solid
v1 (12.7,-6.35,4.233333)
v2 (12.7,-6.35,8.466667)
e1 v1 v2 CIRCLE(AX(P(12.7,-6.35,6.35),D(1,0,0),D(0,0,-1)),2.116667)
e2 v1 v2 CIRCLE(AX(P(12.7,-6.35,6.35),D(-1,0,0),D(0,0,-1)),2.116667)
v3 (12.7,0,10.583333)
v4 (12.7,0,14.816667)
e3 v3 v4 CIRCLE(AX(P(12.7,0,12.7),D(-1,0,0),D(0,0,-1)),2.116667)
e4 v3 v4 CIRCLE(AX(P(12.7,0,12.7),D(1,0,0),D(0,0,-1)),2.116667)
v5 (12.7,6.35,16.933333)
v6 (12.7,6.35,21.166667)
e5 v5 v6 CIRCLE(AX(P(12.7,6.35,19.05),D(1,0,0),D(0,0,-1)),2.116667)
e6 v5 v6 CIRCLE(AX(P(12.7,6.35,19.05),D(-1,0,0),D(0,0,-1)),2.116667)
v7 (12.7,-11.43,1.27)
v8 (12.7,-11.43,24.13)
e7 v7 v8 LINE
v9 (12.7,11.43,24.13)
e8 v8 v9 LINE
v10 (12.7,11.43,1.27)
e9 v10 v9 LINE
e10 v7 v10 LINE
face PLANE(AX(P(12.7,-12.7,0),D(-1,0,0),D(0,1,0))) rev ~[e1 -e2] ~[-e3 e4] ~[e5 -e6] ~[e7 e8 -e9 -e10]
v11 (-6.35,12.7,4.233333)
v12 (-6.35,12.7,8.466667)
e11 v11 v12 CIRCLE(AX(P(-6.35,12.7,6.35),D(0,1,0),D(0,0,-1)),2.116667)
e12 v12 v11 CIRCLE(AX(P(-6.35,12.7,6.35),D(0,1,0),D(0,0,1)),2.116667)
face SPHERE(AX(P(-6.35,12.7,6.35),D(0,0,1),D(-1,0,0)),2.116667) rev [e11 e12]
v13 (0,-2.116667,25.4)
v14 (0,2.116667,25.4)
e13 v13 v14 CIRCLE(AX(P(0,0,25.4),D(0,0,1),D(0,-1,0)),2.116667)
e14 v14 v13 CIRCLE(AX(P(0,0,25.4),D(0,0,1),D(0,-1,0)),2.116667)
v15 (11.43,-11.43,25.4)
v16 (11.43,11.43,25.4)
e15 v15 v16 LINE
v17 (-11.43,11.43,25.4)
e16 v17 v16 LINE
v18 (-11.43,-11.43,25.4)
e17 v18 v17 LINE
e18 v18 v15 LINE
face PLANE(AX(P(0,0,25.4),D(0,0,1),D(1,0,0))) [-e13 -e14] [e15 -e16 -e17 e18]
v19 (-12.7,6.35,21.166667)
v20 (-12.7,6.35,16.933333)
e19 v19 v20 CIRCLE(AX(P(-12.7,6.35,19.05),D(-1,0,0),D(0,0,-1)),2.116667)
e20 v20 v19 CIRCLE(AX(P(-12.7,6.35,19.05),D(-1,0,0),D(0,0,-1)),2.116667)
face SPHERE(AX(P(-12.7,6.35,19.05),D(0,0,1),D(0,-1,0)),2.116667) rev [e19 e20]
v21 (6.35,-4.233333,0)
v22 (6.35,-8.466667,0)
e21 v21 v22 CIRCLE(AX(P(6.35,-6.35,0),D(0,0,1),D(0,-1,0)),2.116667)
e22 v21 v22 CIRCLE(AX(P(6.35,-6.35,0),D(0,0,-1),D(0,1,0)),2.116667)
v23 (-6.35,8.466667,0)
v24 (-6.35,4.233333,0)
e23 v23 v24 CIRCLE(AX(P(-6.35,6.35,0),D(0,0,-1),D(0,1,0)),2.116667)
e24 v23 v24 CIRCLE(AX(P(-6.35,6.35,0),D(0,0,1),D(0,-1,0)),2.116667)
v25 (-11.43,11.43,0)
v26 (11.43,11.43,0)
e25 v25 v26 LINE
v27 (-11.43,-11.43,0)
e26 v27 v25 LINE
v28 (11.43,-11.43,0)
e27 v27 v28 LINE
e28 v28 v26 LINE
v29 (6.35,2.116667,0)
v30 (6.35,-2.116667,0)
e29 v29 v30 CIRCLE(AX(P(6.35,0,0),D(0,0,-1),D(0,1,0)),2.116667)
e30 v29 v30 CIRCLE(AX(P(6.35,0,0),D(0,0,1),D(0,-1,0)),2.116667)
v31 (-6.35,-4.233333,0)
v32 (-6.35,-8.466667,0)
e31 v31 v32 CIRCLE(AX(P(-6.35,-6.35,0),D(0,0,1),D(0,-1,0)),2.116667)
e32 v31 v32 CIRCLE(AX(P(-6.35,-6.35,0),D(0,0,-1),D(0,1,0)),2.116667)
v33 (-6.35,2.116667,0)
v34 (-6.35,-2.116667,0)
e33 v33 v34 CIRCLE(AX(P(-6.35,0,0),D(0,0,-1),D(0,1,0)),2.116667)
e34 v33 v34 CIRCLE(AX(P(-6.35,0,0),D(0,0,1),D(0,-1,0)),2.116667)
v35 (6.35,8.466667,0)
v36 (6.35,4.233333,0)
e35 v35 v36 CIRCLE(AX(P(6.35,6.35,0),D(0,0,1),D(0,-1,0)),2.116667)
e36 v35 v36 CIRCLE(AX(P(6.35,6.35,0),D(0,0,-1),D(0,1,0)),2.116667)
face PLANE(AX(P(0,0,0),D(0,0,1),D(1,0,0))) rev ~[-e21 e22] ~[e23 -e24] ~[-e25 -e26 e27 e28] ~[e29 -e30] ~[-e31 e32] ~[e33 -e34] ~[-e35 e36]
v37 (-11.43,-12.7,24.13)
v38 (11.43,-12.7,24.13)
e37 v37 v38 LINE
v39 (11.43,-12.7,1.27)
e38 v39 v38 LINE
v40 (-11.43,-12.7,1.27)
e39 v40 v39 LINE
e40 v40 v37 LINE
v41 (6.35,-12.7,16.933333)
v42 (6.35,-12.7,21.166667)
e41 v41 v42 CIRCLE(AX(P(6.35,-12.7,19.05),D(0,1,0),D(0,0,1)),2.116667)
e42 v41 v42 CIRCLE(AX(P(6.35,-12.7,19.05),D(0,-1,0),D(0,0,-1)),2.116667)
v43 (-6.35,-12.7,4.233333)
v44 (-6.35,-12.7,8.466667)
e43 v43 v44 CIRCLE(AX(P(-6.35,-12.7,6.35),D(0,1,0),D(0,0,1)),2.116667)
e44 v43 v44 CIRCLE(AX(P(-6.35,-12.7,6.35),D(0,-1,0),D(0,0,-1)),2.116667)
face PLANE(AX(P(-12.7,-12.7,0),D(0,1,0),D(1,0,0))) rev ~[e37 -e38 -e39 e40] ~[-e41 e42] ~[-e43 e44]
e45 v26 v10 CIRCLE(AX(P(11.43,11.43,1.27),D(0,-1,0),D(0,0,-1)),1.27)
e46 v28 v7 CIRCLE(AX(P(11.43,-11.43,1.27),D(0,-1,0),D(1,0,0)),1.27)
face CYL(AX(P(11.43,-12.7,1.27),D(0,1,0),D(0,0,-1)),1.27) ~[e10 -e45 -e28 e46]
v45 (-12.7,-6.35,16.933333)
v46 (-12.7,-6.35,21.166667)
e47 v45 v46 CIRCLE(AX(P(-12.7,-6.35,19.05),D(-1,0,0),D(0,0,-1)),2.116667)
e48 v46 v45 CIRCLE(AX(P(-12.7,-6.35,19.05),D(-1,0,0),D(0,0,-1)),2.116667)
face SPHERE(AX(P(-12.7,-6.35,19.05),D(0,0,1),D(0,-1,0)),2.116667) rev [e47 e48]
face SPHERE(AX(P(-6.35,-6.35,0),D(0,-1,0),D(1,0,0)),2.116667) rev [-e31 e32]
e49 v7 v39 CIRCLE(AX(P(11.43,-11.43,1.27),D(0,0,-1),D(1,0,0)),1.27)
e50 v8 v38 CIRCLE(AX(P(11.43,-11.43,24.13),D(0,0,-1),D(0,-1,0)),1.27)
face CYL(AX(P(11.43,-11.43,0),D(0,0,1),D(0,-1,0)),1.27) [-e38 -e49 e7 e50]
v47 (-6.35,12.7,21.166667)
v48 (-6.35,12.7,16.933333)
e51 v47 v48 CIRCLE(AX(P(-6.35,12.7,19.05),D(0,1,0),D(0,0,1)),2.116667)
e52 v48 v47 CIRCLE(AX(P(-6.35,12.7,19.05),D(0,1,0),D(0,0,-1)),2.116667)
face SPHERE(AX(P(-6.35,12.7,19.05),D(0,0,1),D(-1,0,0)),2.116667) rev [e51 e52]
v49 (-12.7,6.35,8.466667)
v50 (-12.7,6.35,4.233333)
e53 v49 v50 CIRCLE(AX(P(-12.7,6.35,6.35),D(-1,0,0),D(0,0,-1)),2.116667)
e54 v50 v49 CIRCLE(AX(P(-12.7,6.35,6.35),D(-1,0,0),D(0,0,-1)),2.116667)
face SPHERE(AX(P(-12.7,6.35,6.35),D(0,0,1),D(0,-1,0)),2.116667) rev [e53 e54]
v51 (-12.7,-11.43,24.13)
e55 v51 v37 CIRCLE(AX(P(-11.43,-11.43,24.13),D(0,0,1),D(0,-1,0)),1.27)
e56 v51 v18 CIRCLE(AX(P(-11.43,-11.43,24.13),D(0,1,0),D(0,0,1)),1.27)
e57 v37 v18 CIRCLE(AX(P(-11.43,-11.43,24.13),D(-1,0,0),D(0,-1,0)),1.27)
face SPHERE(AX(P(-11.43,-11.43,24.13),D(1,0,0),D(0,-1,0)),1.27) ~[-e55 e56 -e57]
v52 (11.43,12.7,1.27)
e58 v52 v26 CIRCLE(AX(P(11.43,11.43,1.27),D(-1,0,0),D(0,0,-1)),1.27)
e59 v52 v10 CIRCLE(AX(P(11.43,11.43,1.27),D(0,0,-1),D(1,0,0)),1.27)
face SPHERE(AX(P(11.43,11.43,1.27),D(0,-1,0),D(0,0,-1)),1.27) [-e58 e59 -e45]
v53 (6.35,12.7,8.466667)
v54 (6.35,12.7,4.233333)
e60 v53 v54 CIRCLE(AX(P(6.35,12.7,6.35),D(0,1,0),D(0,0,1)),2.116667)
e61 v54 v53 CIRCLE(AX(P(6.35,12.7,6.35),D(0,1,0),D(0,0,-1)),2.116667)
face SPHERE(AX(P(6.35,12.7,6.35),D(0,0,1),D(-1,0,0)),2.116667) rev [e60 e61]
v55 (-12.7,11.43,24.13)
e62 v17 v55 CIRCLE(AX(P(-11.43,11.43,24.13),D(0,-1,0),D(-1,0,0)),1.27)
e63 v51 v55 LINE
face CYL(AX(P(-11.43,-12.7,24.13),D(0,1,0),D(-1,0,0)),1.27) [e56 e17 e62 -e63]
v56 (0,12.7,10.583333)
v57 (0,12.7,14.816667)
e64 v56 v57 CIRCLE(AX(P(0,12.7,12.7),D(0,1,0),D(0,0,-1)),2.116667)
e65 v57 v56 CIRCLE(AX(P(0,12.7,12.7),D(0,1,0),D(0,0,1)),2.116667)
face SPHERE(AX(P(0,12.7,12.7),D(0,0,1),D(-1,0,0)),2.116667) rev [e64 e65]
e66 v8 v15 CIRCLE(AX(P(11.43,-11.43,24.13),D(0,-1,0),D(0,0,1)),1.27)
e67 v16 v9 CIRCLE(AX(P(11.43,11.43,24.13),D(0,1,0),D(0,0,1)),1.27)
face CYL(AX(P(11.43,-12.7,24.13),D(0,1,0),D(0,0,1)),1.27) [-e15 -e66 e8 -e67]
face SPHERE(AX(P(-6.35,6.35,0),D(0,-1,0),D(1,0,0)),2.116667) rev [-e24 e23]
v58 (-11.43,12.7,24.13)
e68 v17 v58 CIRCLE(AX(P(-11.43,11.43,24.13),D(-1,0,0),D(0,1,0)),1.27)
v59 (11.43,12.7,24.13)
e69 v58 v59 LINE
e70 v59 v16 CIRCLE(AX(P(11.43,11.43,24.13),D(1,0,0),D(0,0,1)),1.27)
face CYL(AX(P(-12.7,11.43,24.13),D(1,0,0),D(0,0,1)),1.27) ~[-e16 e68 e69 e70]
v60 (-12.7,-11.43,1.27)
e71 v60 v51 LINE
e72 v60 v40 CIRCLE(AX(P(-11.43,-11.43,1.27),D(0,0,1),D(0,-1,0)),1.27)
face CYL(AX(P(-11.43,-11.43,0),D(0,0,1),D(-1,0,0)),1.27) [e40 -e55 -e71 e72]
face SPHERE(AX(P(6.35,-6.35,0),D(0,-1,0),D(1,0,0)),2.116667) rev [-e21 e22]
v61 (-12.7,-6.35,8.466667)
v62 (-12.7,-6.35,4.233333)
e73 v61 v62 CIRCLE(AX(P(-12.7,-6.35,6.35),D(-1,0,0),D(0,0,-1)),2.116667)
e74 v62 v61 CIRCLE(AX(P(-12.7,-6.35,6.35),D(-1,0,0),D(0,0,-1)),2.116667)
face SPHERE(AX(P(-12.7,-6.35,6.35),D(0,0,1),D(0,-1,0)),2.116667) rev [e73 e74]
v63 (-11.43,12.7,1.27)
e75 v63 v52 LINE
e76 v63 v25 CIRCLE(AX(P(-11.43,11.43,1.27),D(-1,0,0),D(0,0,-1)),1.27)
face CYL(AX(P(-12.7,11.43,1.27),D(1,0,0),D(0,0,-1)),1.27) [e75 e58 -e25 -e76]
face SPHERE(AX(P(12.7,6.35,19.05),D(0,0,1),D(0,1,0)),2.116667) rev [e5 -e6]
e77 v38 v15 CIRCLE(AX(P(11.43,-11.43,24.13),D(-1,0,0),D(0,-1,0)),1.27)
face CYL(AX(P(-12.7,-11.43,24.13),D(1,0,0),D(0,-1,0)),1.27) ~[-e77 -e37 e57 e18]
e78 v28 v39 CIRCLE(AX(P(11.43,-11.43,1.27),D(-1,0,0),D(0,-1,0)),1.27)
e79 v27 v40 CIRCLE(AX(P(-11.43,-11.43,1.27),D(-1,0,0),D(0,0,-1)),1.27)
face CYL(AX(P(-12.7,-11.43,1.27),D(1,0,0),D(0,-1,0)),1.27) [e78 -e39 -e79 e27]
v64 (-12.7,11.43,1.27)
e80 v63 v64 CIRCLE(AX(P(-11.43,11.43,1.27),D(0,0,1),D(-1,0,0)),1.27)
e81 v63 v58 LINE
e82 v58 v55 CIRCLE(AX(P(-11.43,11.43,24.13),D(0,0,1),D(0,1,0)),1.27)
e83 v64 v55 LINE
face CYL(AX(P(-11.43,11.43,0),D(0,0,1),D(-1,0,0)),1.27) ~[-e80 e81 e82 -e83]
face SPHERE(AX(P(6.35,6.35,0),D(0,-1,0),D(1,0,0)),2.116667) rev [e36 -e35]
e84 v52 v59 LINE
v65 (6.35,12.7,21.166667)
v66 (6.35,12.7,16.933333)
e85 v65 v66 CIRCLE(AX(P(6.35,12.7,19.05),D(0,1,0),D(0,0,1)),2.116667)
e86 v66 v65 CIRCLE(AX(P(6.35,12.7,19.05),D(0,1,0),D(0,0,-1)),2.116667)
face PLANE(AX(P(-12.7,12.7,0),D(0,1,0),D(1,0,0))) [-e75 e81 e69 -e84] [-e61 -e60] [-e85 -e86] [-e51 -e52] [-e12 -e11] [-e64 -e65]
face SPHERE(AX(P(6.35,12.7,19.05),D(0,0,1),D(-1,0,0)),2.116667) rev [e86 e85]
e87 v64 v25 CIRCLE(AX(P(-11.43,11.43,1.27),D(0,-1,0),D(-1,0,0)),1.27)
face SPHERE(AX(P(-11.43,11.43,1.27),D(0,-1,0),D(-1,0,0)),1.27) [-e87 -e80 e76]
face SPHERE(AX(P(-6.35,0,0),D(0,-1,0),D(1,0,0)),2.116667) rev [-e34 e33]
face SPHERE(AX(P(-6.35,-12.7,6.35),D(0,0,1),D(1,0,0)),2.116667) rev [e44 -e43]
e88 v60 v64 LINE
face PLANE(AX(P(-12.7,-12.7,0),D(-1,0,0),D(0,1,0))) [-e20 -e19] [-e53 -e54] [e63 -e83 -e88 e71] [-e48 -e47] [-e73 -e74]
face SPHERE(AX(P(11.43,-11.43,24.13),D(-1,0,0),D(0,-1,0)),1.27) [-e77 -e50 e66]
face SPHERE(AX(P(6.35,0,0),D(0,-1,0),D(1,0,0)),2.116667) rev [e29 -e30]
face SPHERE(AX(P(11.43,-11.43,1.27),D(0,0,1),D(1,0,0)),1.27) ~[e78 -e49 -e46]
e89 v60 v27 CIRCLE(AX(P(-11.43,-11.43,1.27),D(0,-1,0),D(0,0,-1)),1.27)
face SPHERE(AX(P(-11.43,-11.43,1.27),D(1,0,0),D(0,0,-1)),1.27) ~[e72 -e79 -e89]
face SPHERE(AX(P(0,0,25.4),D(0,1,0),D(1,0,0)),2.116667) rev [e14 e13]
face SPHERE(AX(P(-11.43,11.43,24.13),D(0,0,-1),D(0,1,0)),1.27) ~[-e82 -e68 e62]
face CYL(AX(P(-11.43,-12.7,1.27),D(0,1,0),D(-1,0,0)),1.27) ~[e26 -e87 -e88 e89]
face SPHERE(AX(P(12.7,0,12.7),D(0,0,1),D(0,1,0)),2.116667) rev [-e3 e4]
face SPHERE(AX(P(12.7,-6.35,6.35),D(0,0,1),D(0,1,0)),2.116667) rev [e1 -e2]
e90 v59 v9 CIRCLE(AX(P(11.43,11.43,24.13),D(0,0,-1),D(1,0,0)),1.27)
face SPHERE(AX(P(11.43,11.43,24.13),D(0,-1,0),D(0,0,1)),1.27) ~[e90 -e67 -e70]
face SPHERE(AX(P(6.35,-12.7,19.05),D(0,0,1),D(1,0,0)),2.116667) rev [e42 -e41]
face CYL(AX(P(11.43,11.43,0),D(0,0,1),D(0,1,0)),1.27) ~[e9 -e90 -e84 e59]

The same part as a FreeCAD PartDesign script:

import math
import FreeCAD as App
import Part
import Sketcher

V = App.Vector
Q = App.Units.Quantity


def edges_at(feature, points):
    """Names of the edges that pass closest to the given points."""
    edges = feature.Shape.Edges
    near = lambda p: min(range(len(edges)), key=lambda i: edges[i].distToShape(Part.Vertex(*p))[0])
    return sorted({f"Edge{near(p) + 1}" for p in points})


def add_polygon(sketch, points):
    """Adds a closed chain of lines whose ends are joined by coincident constraints."""
    first, n = sketch.GeometryCount, len(points)
    for a, b in zip(points, points[1:] + points[:1]):
        sketch.addGeometry(Part.LineSegment(App.Vector(*a, 0), App.Vector(*b, 0)), False)
    for i in range(n):
        sketch.addConstraint(Sketcher.Constraint("Coincident", first + i, 2, first + (i + 1) % n, 1))

doc = App.newDocument("Part")
body = doc.addObject("PartDesign::Body", "Body")

sketch1 = body.newObject("Sketcher::SketchObject", "Sketch")
sketch1.AttachmentSupport = (doc.getObject("XY_Plane"), [""])
sketch1.MapMode = "FlatFace"
add_polygon(sketch1, [(-13, 13), (-13, -13), (13, -13), (13, 13)])
sketch1.addConstraint([
    Sketcher.Constraint("Vertical", 0),
    Sketcher.Constraint("Horizontal", 1),
    Sketcher.Constraint("Vertical", 2),
    Sketcher.Constraint("Horizontal", 3),
    Sketcher.Constraint("Symmetric", 0, 2, 2, 2, -1, 1),
    Sketcher.Constraint("Equal", 3, 0),
    Sketcher.Constraint("DistanceX", 1, 1, 1, 2, Q("1 in")),
])
pad1 = body.newObject("PartDesign::Pad", "Pad")
pad1.Profile = sketch1
pad1.Length = Q("1 in")

sketch2 = body.newObject("Sketcher::SketchObject", "Sketch001")
sketch2.AttachmentSupport = (doc.getObject("XY_Plane"), [""])
sketch2.MapMode = "FlatFace"
sketch2.AttachmentOffset = App.Placement(V(0, 0, 1 * 25.4), App.Rotation())
sketch2.addGeometry([
    Part.LineSegment(V(0, 2.1, 0), V(0, -2.1, 0)),
    Part.ArcOfCircle(Part.Circle(V(0, 0, 0), V(0, 0, 1), 2.1), math.radians(-90), math.radians(90)),
], False)
sketch2.addConstraint([
    Sketcher.Constraint("Coincident", 0, 1, 1, 2),
    Sketcher.Constraint("Coincident", 1, 1, 0, 2),
    Sketcher.Constraint("Vertical", 0),
    Sketcher.Constraint("Coincident", 1, 3, -1, 1),
    Sketcher.Constraint("PointOnObject", 0, 1, -2),
    Sketcher.Constraint("Radius", 1, Q("2.116667 mm")),
])
groove = body.newObject("PartDesign::Groove", "Groove")
groove.Profile = sketch2
groove.ReferenceAxis = (sketch2, ["V_Axis"])
groove.Angle = 360

sketch3 = body.newObject("Sketcher::SketchObject", "Sketch002")
sketch3.AttachmentSupport = (doc.getObject("XZ_Plane"), [""])
sketch3.MapMode = "FlatFace"
sketch3.AttachmentOffset = App.Placement(V(0, 0, 0.5 * 25.4), App.Rotation())
sketch3.addGeometry([
    Part.LineSegment(V(-6.3, 8.5, 0), V(-6.3, 4.2, 0)),
    Part.ArcOfCircle(Part.Circle(V(-6.3, 6.3, 0), V(0, 0, 1), 2.1), math.radians(-90), math.radians(90)),
], False)
sketch3.addGeometry(Part.LineSegment(V(-6.3, 8.5, 0), V(-6.3, 4.2, 0)), True)
sketch3.addConstraint([
    Sketcher.Constraint("Coincident", 0, 1, 1, 2),
    Sketcher.Constraint("Coincident", 1, 1, 0, 2),
    Sketcher.Constraint("Vertical", 0),
    Sketcher.Constraint("Vertical", 2),
    Sketcher.Constraint("Coincident", 2, 1, 0, 1),
    Sketcher.Constraint("Vertical", 1, 3, 0, 1),
    Sketcher.Constraint("Equal", 0, 2),
    Sketcher.Constraint("DistanceX", 1, 3, -1, 1, Q("0.25 in")),
    Sketcher.Constraint("DistanceY", -1, 1, 1, 3, Q("0.25 in")),
    Sketcher.Constraint("Radius", 1, Q("2.116667 mm")),
])
groove2 = body.newObject("PartDesign::Groove", "Groove001")
groove2.Profile = sketch3
groove2.ReferenceAxis = (sketch3, ["Axis0"])
groove2.Angle = 360

sketch4 = body.newObject("Sketcher::SketchObject", "Sketch003")
sketch4.AttachmentSupport = (doc.getObject("XZ_Plane"), [""])
sketch4.MapMode = "FlatFace"
sketch4.AttachmentOffset = App.Placement(V(0, 0, 0.5 * 25.4), App.Rotation())
sketch4.addGeometry([
    Part.LineSegment(V(6.3, 21.2, 0), V(6.3, 16.9, 0)),
    Part.ArcOfCircle(Part.Circle(V(6.3, 19.1, 0), V(0, 0, 1), 2.1), math.radians(-90), math.radians(90)),
], False)
sketch4.addGeometry(Part.LineSegment(V(6.3, 21.2, 0), V(6.3, 16.9, 0)), True)
sketch4.addConstraint([
    Sketcher.Constraint("Coincident", 0, 1, 1, 2),
    Sketcher.Constraint("Coincident", 1, 1, 0, 2),
    Sketcher.Constraint("Vertical", 0),
    Sketcher.Constraint("Vertical", 2),
    Sketcher.Constraint("Coincident", 2, 1, 0, 1),
    Sketcher.Constraint("Vertical", 1, 3, 0, 1),
    Sketcher.Constraint("Equal", 0, 2),
    Sketcher.Constraint("DistanceX", -1, 1, 1, 3, Q("0.25 in")),
    Sketcher.Constraint("DistanceY", -1, 1, 1, 3, Q("0.75 in")),
    Sketcher.Constraint("Radius", 1, Q("2.116667 mm")),
])
groove3 = body.newObject("PartDesign::Groove", "Groove002")
groove3.Profile = sketch4
groove3.ReferenceAxis = (sketch4, ["Axis0"])
groove3.Angle = 360

sketch5 = body.newObject("Sketcher::SketchObject", "Sketch004")
sketch5.AttachmentSupport = (doc.getObject("YZ_Plane"), [""])
sketch5.MapMode = "FlatFace"
sketch5.AttachmentOffset = App.Placement(V(0, 0, 0.5 * 25.4), App.Rotation())
sketch5.addGeometry([
    Part.LineSegment(V(6.3, 21.2, 0), V(6.3, 16.9, 0)),
    Part.ArcOfCircle(Part.Circle(V(6.3, 19.1, 0), V(0, 0, 1), 2.1), math.radians(-90), math.radians(90)),
], False)
sketch5.addGeometry(Part.LineSegment(V(6.3, 21.2, 0), V(6.3, 16.9, 0)), True)
sketch5.addConstraint([
    Sketcher.Constraint("Coincident", 0, 1, 1, 2),
    Sketcher.Constraint("Coincident", 1, 1, 0, 2),
    Sketcher.Constraint("Vertical", 0),
    Sketcher.Constraint("Vertical", 2),
    Sketcher.Constraint("Coincident", 2, 1, 0, 1),
    Sketcher.Constraint("Vertical", 1, 3, 0, 1),
    Sketcher.Constraint("Equal", 0, 2),
    Sketcher.Constraint("DistanceX", -1, 1, 1, 3, Q("0.25 in")),
    Sketcher.Constraint("DistanceY", -1, 1, 1, 3, Q("0.75 in")),
    Sketcher.Constraint("Radius", 1, Q("2.116667 mm")),
])
groove4 = body.newObject("PartDesign::Groove", "Groove003")
groove4.Profile = sketch5
groove4.ReferenceAxis = (sketch5, ["Axis0"])
groove4.Angle = 360

sketch6 = body.newObject("Sketcher::SketchObject", "Sketch005")
sketch6.AttachmentSupport = (doc.getObject("YZ_Plane"), [""])
sketch6.MapMode = "FlatFace"
sketch6.AttachmentOffset = App.Placement(V(0, 0, 0.5 * 25.4), App.Rotation())
sketch6.addGeometry([
    Part.LineSegment(V(0, 14.8, 0), V(0, 10.6, 0)),
    Part.ArcOfCircle(Part.Circle(V(0, 12.7, 0), V(0, 0, 1), 2.1), math.radians(-90), math.radians(90)),
], False)
sketch6.addConstraint([
    Sketcher.Constraint("Coincident", 0, 1, 1, 2),
    Sketcher.Constraint("Coincident", 1, 1, 0, 2),
    Sketcher.Constraint("Vertical", 0),
    Sketcher.Constraint("PointOnObject", 1, 3, -2),
    Sketcher.Constraint("PointOnObject", 0, 1, -2),
    Sketcher.Constraint("DistanceY", -1, 1, 1, 3, Q("0.5 in")),
    Sketcher.Constraint("Radius", 1, Q("2.116667 mm")),
])
groove5 = body.newObject("PartDesign::Groove", "Groove004")
groove5.Profile = sketch6
groove5.ReferenceAxis = (sketch6, ["V_Axis"])
groove5.Angle = 360

sketch7 = body.newObject("Sketcher::SketchObject", "Sketch006")
sketch7.AttachmentSupport = (doc.getObject("YZ_Plane"), [""])
sketch7.MapMode = "FlatFace"
sketch7.AttachmentOffset = App.Placement(V(0, 0, 0.5 * 25.4), App.Rotation())
sketch7.addGeometry([
    Part.LineSegment(V(-6.3, 8.5, 0), V(-6.3, 4.2, 0)),
    Part.ArcOfCircle(Part.Circle(V(-6.3, 6.3, 0), V(0, 0, 1), 2.1), math.radians(-90), math.radians(90)),
], False)
sketch7.addGeometry(Part.LineSegment(V(-6.3, 8.5, 0), V(-6.3, 4.2, 0)), True)
sketch7.addConstraint([
    Sketcher.Constraint("Coincident", 0, 1, 1, 2),
    Sketcher.Constraint("Coincident", 1, 1, 0, 2),
    Sketcher.Constraint("Vertical", 0),
    Sketcher.Constraint("Vertical", 2),
    Sketcher.Constraint("Coincident", 2, 1, 0, 1),
    Sketcher.Constraint("Vertical", 1, 3, 0, 1),
    Sketcher.Constraint("Equal", 0, 2),
    Sketcher.Constraint("DistanceX", 1, 3, -1, 1, Q("0.25 in")),
    Sketcher.Constraint("DistanceY", -1, 1, 1, 3, Q("0.25 in")),
    Sketcher.Constraint("Radius", 1, Q("2.116667 mm")),
])
groove6 = body.newObject("PartDesign::Groove", "Groove005")
groove6.Profile = sketch7
groove6.ReferenceAxis = (sketch7, ["Axis0"])
groove6.Angle = 360

sketch8 = body.newObject("Sketcher::SketchObject", "Sketch007")
sketch8.AttachmentSupport = (doc.getObject("YZ_Plane"), [""])
sketch8.MapMode = "FlatFace"
sketch8.AttachmentOffset = App.Placement(V(0, 0, -0.5 * 25.4), App.Rotation())
sketch8.addGeometry([
    Part.LineSegment(V(6.3, 21.2, 0), V(6.3, 16.9, 0)),
    Part.ArcOfCircle(Part.Circle(V(6.3, 19.1, 0), V(0, 0, 1), 2.1), math.radians(90), math.radians(270)),
], False)
sketch8.addGeometry(Part.LineSegment(V(6.3, 21.2, 0), V(6.3, 16.9, 0)), True)
sketch8.addConstraint([
    Sketcher.Constraint("Coincident", 0, 1, 1, 1),
    Sketcher.Constraint("Coincident", 1, 2, 0, 2),
    Sketcher.Constraint("Vertical", 0),
    Sketcher.Constraint("Vertical", 2),
    Sketcher.Constraint("Coincident", 2, 1, 0, 1),
    Sketcher.Constraint("Vertical", 1, 3, 0, 1),
    Sketcher.Constraint("Equal", 0, 2),
    Sketcher.Constraint("DistanceX", -1, 1, 1, 3, Q("0.25 in")),
    Sketcher.Constraint("DistanceY", -1, 1, 1, 3, Q("0.75 in")),
    Sketcher.Constraint("Radius", 1, Q("2.116667 mm")),
])
groove7 = body.newObject("PartDesign::Groove", "Groove006")
groove7.Profile = sketch8
groove7.ReferenceAxis = (sketch8, ["Axis0"])
groove7.Angle = 360

sketch9 = body.newObject("Sketcher::SketchObject", "Sketch008")
sketch9.AttachmentSupport = (doc.getObject("YZ_Plane"), [""])
sketch9.MapMode = "FlatFace"
sketch9.AttachmentOffset = App.Placement(V(0, 0, -0.5 * 25.4), App.Rotation())
sketch9.addGeometry([
    Part.LineSegment(V(-6.3, 21.2, 0), V(-6.3, 16.9, 0)),
    Part.ArcOfCircle(Part.Circle(V(-6.3, 19.1, 0), V(0, 0, 1), 2.1), math.radians(90), math.radians(270)),
], False)
sketch9.addGeometry(Part.LineSegment(V(-6.3, 21.2, 0), V(-6.3, 16.9, 0)), True)
sketch9.addConstraint([
    Sketcher.Constraint("Coincident", 0, 1, 1, 1),
    Sketcher.Constraint("Coincident", 1, 2, 0, 2),
    Sketcher.Constraint("Vertical", 0),
    Sketcher.Constraint("Vertical", 2),
    Sketcher.Constraint("Coincident", 2, 1, 0, 1),
    Sketcher.Constraint("Vertical", 1, 3, 0, 1),
    Sketcher.Constraint("Equal", 0, 2),
    Sketcher.Constraint("DistanceX", 1, 3, -1, 1, Q("0.25 in")),
    Sketcher.Constraint("DistanceY", -1, 1, 1, 3, Q("0.75 in")),
    Sketcher.Constraint("Radius", 1, Q("2.116667 mm")),
])
groove8 = body.newObject("PartDesign::Groove", "Groove007")
groove8.Profile = sketch9
groove8.ReferenceAxis = (sketch9, ["Axis0"])
groove8.Angle = 360

sketch10 = body.newObject("Sketcher::SketchObject", "Sketch009")
sketch10.AttachmentSupport = (doc.getObject("YZ_Plane"), [""])
sketch10.MapMode = "FlatFace"
sketch10.AttachmentOffset = App.Placement(V(0, 0, -0.5 * 25.4), App.Rotation())
sketch10.addGeometry([
    Part.LineSegment(V(6.3, 8.5, 0), V(6.3, 4.2, 0)),
    Part.ArcOfCircle(Part.Circle(V(6.3, 6.3, 0), V(0, 0, 1), 2.1), math.radians(90), math.radians(270)),
], False)
sketch10.addGeometry(Part.LineSegment(V(6.3, 8.5, 0), V(6.3, 4.2, 0)), True)
sketch10.addConstraint([
    Sketcher.Constraint("Coincident", 0, 1, 1, 1),
    Sketcher.Constraint("Coincident", 1, 2, 0, 2),
    Sketcher.Constraint("Vertical", 0),
    Sketcher.Constraint("Vertical", 2),
    Sketcher.Constraint("Coincident", 2, 1, 0, 1),
    Sketcher.Constraint("Vertical", 1, 3, 0, 1),
    Sketcher.Constraint("Equal", 0, 2),
    Sketcher.Constraint("DistanceX", -1, 1, 1, 3, Q("0.25 in")),
    Sketcher.Constraint("DistanceY", -1, 1, 1, 3, Q("0.25 in")),
    Sketcher.Constraint("Radius", 1, Q("2.116667 mm")),
])
groove9 = body.newObject("PartDesign::Groove", "Groove008")
groove9.Profile = sketch10
groove9.ReferenceAxis = (sketch10, ["Axis0"])
groove9.Angle = 360

sketch11 = body.newObject("Sketcher::SketchObject", "Sketch010")
sketch11.AttachmentSupport = (doc.getObject("YZ_Plane"), [""])
sketch11.MapMode = "FlatFace"
sketch11.AttachmentOffset = App.Placement(V(0, 0, -0.5 * 25.4), App.Rotation())
sketch11.addGeometry([
    Part.LineSegment(V(-6.3, 8.5, 0), V(-6.3, 4.2, 0)),
    Part.ArcOfCircle(Part.Circle(V(-6.3, 6.3, 0), V(0, 0, 1), 2.1), math.radians(90), math.radians(270)),
], False)
sketch11.addGeometry(Part.LineSegment(V(-6.3, 8.5, 0), V(-6.3, 4.2, 0)), True)
sketch11.addConstraint([
    Sketcher.Constraint("Coincident", 0, 1, 1, 1),
    Sketcher.Constraint("Coincident", 1, 2, 0, 2),
    Sketcher.Constraint("Vertical", 0),
    Sketcher.Constraint("Vertical", 2),
    Sketcher.Constraint("Coincident", 2, 1, 0, 1),
    Sketcher.Constraint("Vertical", 1, 3, 0, 1),
    Sketcher.Constraint("Equal", 0, 2),
    Sketcher.Constraint("DistanceX", 1, 3, -1, 1, Q("0.25 in")),
    Sketcher.Constraint("DistanceY", -1, 1, 1, 3, Q("0.25 in")),
    Sketcher.Constraint("Radius", 1, Q("2.116667 mm")),
])
groove10 = body.newObject("PartDesign::Groove", "Groove009")
groove10.Profile = sketch11
groove10.ReferenceAxis = (sketch11, ["Axis0"])
groove10.Angle = 360

sketch12 = body.newObject("Sketcher::SketchObject", "Sketch011")
sketch12.AttachmentSupport = (doc.getObject("XZ_Plane"), [""])
sketch12.MapMode = "FlatFace"
sketch12.AttachmentOffset = App.Placement(V(0, 0, -0.5 * 25.4), App.Rotation())
sketch12.addGeometry([
    Part.LineSegment(V(6.3, 21.2, 0), V(6.3, 16.9, 0)),
    Part.ArcOfCircle(Part.Circle(V(6.3, 19.1, 0), V(0, 0, 1), 2.1), math.radians(90), math.radians(270)),
], False)
sketch12.addGeometry(Part.LineSegment(V(6.3, 21.2, 0), V(6.3, 16.9, 0)), True)
sketch12.addConstraint([
    Sketcher.Constraint("Coincident", 0, 1, 1, 1),
    Sketcher.Constraint("Coincident", 1, 2, 0, 2),
    Sketcher.Constraint("Vertical", 0),
    Sketcher.Constraint("Vertical", 2),
    Sketcher.Constraint("Coincident", 2, 1, 0, 1),
    Sketcher.Constraint("Vertical", 1, 3, 0, 1),
    Sketcher.Constraint("Equal", 0, 2),
    Sketcher.Constraint("DistanceX", -1, 1, 1, 3, Q("0.25 in")),
    Sketcher.Constraint("DistanceY", -1, 1, 1, 3, Q("0.75 in")),
    Sketcher.Constraint("Radius", 1, Q("2.116667 mm")),
])
groove11 = body.newObject("PartDesign::Groove", "Groove010")
groove11.Profile = sketch12
groove11.ReferenceAxis = (sketch12, ["Axis0"])
groove11.Angle = 360

sketch13 = body.newObject("Sketcher::SketchObject", "Sketch012")
sketch13.AttachmentSupport = (doc.getObject("XZ_Plane"), [""])
sketch13.MapMode = "FlatFace"
sketch13.AttachmentOffset = App.Placement(V(0, 0, -0.5 * 25.4), App.Rotation())
sketch13.addGeometry([
    Part.ArcOfCircle(Part.Circle(V(-6.3, 19.1, 0), V(0, 0, 1), 2.1), math.radians(90), math.radians(270)),
    Part.LineSegment(V(-6.3, 21.2, 0), V(-6.3, 16.9, 0)),
], False)
sketch13.addGeometry(Part.LineSegment(V(-6.3, 21.2, 0), V(-6.3, 16.9, 0)), True)
sketch13.addConstraint([
    Sketcher.Constraint("Coincident", 0, 1, 1, 1),
    Sketcher.Constraint("Coincident", 1, 2, 0, 2),
    Sketcher.Constraint("Vertical", 1),
    Sketcher.Constraint("Vertical", 2),
    Sketcher.Constraint("Coincident", 2, 1, 0, 1),
    Sketcher.Constraint("Equal", 1, 2),
    Sketcher.Constraint("DistanceX", 0, 3, -1, 1, Q("0.25 in")),
    Sketcher.Constraint("DistanceY", -1, 1, 0, 3, Q("0.75 in")),
    Sketcher.Constraint("DistanceX", 0, 1, -1, 1, Q("0.25 in")),
    Sketcher.Constraint("Radius", 0, Q("2.116667 mm")),
])
groove12 = body.newObject("PartDesign::Groove", "Groove011")
groove12.Profile = sketch13
groove12.ReferenceAxis = (sketch13, ["Axis0"])
groove12.Angle = 360

sketch14 = body.newObject("Sketcher::SketchObject", "Sketch013")
sketch14.AttachmentSupport = (doc.getObject("XZ_Plane"), [""])
sketch14.MapMode = "FlatFace"
sketch14.AttachmentOffset = App.Placement(V(0, 0, -0.5 * 25.4), App.Rotation())
sketch14.addGeometry([
    Part.LineSegment(V(0, 14.8, 0), V(0, 10.6, 0)),
    Part.ArcOfCircle(Part.Circle(V(0, 12.7, 0), V(0, 0, 1), 2.1), math.radians(90), math.radians(270)),
], False)
sketch14.addConstraint([
    Sketcher.Constraint("Coincident", 0, 1, 1, 1),
    Sketcher.Constraint("Coincident", 1, 2, 0, 2),
    Sketcher.Constraint("Vertical", 0),
    Sketcher.Constraint("PointOnObject", 1, 3, -2),
    Sketcher.Constraint("PointOnObject", 0, 1, -2),
    Sketcher.Constraint("DistanceY", -1, 1, 1, 3, Q("0.5 in")),
    Sketcher.Constraint("Radius", 1, Q("2.116667 mm")),
])
groove13 = body.newObject("PartDesign::Groove", "Groove012")
groove13.Profile = sketch14
groove13.ReferenceAxis = (sketch14, ["V_Axis"])
groove13.Angle = 360

sketch15 = body.newObject("Sketcher::SketchObject", "Sketch014")
sketch15.AttachmentSupport = (doc.getObject("XZ_Plane"), [""])
sketch15.MapMode = "FlatFace"
sketch15.AttachmentOffset = App.Placement(V(0, 0, -0.5 * 25.4), App.Rotation())
sketch15.addGeometry([
    Part.ArcOfCircle(Part.Circle(V(6.3, 6.3, 0), V(0, 0, 1), 2.1), math.radians(90), math.radians(270)),
    Part.LineSegment(V(6.3, 8.5, 0), V(6.3, 4.2, 0)),
], False)
sketch15.addGeometry(Part.LineSegment(V(6.3, 8.5, 0), V(6.3, 4.2, 0)), True)
sketch15.addConstraint([
    Sketcher.Constraint("Coincident", 0, 1, 1, 1),
    Sketcher.Constraint("Coincident", 1, 2, 0, 2),
    Sketcher.Constraint("Vertical", 1),
    Sketcher.Constraint("Vertical", 2),
    Sketcher.Constraint("Coincident", 2, 1, 0, 1),
    Sketcher.Constraint("Equal", 1, 2),
    Sketcher.Constraint("DistanceX", -1, 1, 0, 3, Q("0.25 in")),
    Sketcher.Constraint("DistanceY", -1, 1, 0, 3, Q("0.25 in")),
    Sketcher.Constraint("DistanceX", -1, 1, 0, 1, Q("0.25 in")),
    Sketcher.Constraint("Radius", 0, Q("2.116667 mm")),
])
groove14 = body.newObject("PartDesign::Groove", "Groove013")
groove14.Profile = sketch15
groove14.ReferenceAxis = (sketch15, ["Axis0"])
groove14.Angle = 360

sketch16 = body.newObject("Sketcher::SketchObject", "Sketch015")
sketch16.AttachmentSupport = (doc.getObject("XZ_Plane"), [""])
sketch16.MapMode = "FlatFace"
sketch16.AttachmentOffset = App.Placement(V(0, 0, -0.5 * 25.4), App.Rotation())
sketch16.addGeometry([
    Part.ArcOfCircle(Part.Circle(V(-6.3, 6.3, 0), V(0, 0, 1), 2.1), math.radians(90), math.radians(270)),
    Part.LineSegment(V(-6.3, 8.5, 0), V(-6.3, 4.2, 0)),
], False)
sketch16.addGeometry(Part.LineSegment(V(-6.3, 8.5, 0), V(-6.3, 4.2, 0)), True)
sketch16.addConstraint([
    Sketcher.Constraint("Coincident", 0, 1, 1, 1),
    Sketcher.Constraint("Coincident", 1, 2, 0, 2),
    Sketcher.Constraint("Vertical", 1),
    Sketcher.Constraint("Vertical", 2),
    Sketcher.Constraint("Coincident", 2, 1, 0, 1),
    Sketcher.Constraint("Equal", 1, 2),
    Sketcher.Constraint("DistanceX", 0, 3, -1, 1, Q("0.25 in")),
    Sketcher.Constraint("DistanceY", -1, 1, 0, 3, Q("0.25 in")),
    Sketcher.Constraint("DistanceX", 0, 1, -1, 1, Q("0.25 in")),
    Sketcher.Constraint("Radius", 0, Q("2.116667 mm")),
])
groove15 = body.newObject("PartDesign::Groove", "Groove014")
groove15.Profile = sketch16
groove15.ReferenceAxis = (sketch16, ["Axis0"])
groove15.Angle = 360

sketch17 = body.newObject("Sketcher::SketchObject", "Sketch016")
sketch17.AttachmentSupport = (doc.getObject("XY_Plane"), [""])
sketch17.MapMode = "FlatFace"
sketch17.addGeometry([
    Part.LineSegment(V(-6.3, -8.5, 0), V(-6.3, -4.2, 0)),
    Part.ArcOfCircle(Part.Circle(V(-6.3, -6.3, 0), V(0, 0, 1), 2.1), math.radians(-90), math.radians(90)),
], False)
sketch17.addGeometry(Part.LineSegment(V(-6.3, -8.5, 0), V(-6.3, -4.2, 0)), True)
sketch17.addConstraint([
    Sketcher.Constraint("Coincident", 0, 1, 1, 1),
    Sketcher.Constraint("Coincident", 1, 2, 0, 2),
    Sketcher.Constraint("Vertical", 0),
    Sketcher.Constraint("Vertical", 2),
    Sketcher.Constraint("Coincident", 2, 1, 0, 1),
    Sketcher.Constraint("Vertical", 1, 3, 0, 1),
    Sketcher.Constraint("Equal", 0, 2),
    Sketcher.Constraint("DistanceX", 1, 3, -1, 1, Q("0.25 in")),
    Sketcher.Constraint("DistanceY", 1, 3, -1, 1, Q("0.25 in")),
    Sketcher.Constraint("Radius", 1, Q("2.116667 mm")),
])
groove16 = body.newObject("PartDesign::Groove", "Groove015")
groove16.Profile = sketch17
groove16.ReferenceAxis = (sketch17, ["Axis0"])
groove16.Angle = 360

sketch18 = body.newObject("Sketcher::SketchObject", "Sketch017")
sketch18.AttachmentSupport = (doc.getObject("XY_Plane"), [""])
sketch18.MapMode = "FlatFace"
sketch18.addGeometry([
    Part.LineSegment(V(6.3, -8.5, 0), V(6.3, -4.2, 0)),
    Part.ArcOfCircle(Part.Circle(V(6.3, -6.3, 0), V(0, 0, 1), 2.1), math.radians(-90), math.radians(90)),
], False)
sketch18.addGeometry(Part.LineSegment(V(6.3, -8.5, 0), V(6.3, -4.2, 0)), True)
sketch18.addConstraint([
    Sketcher.Constraint("Coincident", 0, 1, 1, 1),
    Sketcher.Constraint("Coincident", 1, 2, 0, 2),
    Sketcher.Constraint("Vertical", 0),
    Sketcher.Constraint("Vertical", 2),
    Sketcher.Constraint("Coincident", 2, 1, 0, 1),
    Sketcher.Constraint("Vertical", 1, 3, 0, 1),
    Sketcher.Constraint("Equal", 0, 2),
    Sketcher.Constraint("DistanceX", -1, 1, 1, 3, Q("0.25 in")),
    Sketcher.Constraint("DistanceY", 1, 3, -1, 1, Q("0.25 in")),
    Sketcher.Constraint("Radius", 1, Q("2.116667 mm")),
])
groove17 = body.newObject("PartDesign::Groove", "Groove016")
groove17.Profile = sketch18
groove17.ReferenceAxis = (sketch18, ["Axis0"])
groove17.Angle = 360

sketch19 = body.newObject("Sketcher::SketchObject", "Sketch018")
sketch19.AttachmentSupport = (doc.getObject("XY_Plane"), [""])
sketch19.MapMode = "FlatFace"
sketch19.addGeometry([
    Part.LineSegment(V(-6.3, -2.1, 0), V(-6.3, 2.1, 0)),
    Part.ArcOfCircle(Part.Circle(V(-6.3, 0, 0), V(0, 0, 1), 2.1), math.radians(-90), math.radians(90)),
], False)
sketch19.addGeometry(Part.LineSegment(V(-6.3, -2.1, 0), V(-6.3, 2.1, 0)), True)
sketch19.addConstraint([
    Sketcher.Constraint("Coincident", 0, 1, 1, 1),
    Sketcher.Constraint("Coincident", 1, 2, 0, 2),
    Sketcher.Constraint("Vertical", 0),
    Sketcher.Constraint("Vertical", 2),
    Sketcher.Constraint("Coincident", 2, 1, 0, 1),
    Sketcher.Constraint("PointOnObject", 1, 3, -1),
    Sketcher.Constraint("Vertical", 1, 3, 0, 1),
    Sketcher.Constraint("Equal", 0, 2),
    Sketcher.Constraint("DistanceX", 1, 3, -1, 1, Q("0.25 in")),
    Sketcher.Constraint("Radius", 1, Q("2.116667 mm")),
])
groove18 = body.newObject("PartDesign::Groove", "Groove017")
groove18.Profile = sketch19
groove18.ReferenceAxis = (sketch19, ["Axis0"])
groove18.Angle = 360

sketch20 = body.newObject("Sketcher::SketchObject", "Sketch019")
sketch20.AttachmentSupport = (doc.getObject("XY_Plane"), [""])
sketch20.MapMode = "FlatFace"
sketch20.addGeometry([
    Part.LineSegment(V(6.3, -2.1, 0), V(6.3, 2.1, 0)),
    Part.ArcOfCircle(Part.Circle(V(6.3, 0, 0), V(0, 0, 1), 2.1), math.radians(-90), math.radians(90)),
], False)
sketch20.addGeometry(Part.LineSegment(V(6.3, -2.1, 0), V(6.3, 2.1, 0)), True)
sketch20.addConstraint([
    Sketcher.Constraint("Coincident", 0, 1, 1, 1),
    Sketcher.Constraint("Coincident", 1, 2, 0, 2),
    Sketcher.Constraint("Vertical", 0),
    Sketcher.Constraint("Vertical", 2),
    Sketcher.Constraint("Coincident", 2, 1, 0, 1),
    Sketcher.Constraint("PointOnObject", 1, 3, -1),
    Sketcher.Constraint("Vertical", 1, 3, 0, 1),
    Sketcher.Constraint("Equal", 0, 2),
    Sketcher.Constraint("DistanceX", -1, 1, 1, 3, Q("0.25 in")),
    Sketcher.Constraint("Radius", 1, Q("2.116667 mm")),
])
groove19 = body.newObject("PartDesign::Groove", "Groove018")
groove19.Profile = sketch20
groove19.ReferenceAxis = (sketch20, ["Axis0"])
groove19.Angle = 360

sketch21 = body.newObject("Sketcher::SketchObject", "Sketch020")
sketch21.AttachmentSupport = (doc.getObject("XY_Plane"), [""])
sketch21.MapMode = "FlatFace"
sketch21.addGeometry([
    Part.LineSegment(V(-6.3, 4.2, 0), V(-6.3, 8.5, 0)),
    Part.ArcOfCircle(Part.Circle(V(-6.3, 6.3, 0), V(0, 0, 1), 2.1), math.radians(-90), math.radians(90)),
], False)
sketch21.addGeometry(Part.LineSegment(V(-6.3, 4.2, 0), V(-6.3, 8.5, 0)), True)
sketch21.addConstraint([
    Sketcher.Constraint("Coincident", 0, 1, 1, 1),
    Sketcher.Constraint("Coincident", 1, 2, 0, 2),
    Sketcher.Constraint("Vertical", 0),
    Sketcher.Constraint("Vertical", 2),
    Sketcher.Constraint("Coincident", 2, 1, 0, 1),
    Sketcher.Constraint("Vertical", 1, 3, 0, 1),
    Sketcher.Constraint("Equal", 0, 2),
    Sketcher.Constraint("DistanceX", 1, 3, -1, 1, Q("0.25 in")),
    Sketcher.Constraint("DistanceY", -1, 1, 1, 3, Q("0.25 in")),
    Sketcher.Constraint("Radius", 1, Q("2.116667 mm")),
])
groove20 = body.newObject("PartDesign::Groove", "Groove019")
groove20.Profile = sketch21
groove20.ReferenceAxis = (sketch21, ["Axis0"])
groove20.Angle = 360

sketch22 = body.newObject("Sketcher::SketchObject", "Sketch021")
sketch22.AttachmentSupport = (doc.getObject("XY_Plane"), [""])
sketch22.MapMode = "FlatFace"
sketch22.addGeometry([
    Part.LineSegment(V(6.3, 4.2, 0), V(6.3, 8.5, 0)),
    Part.ArcOfCircle(Part.Circle(V(6.3, 6.3, 0), V(0, 0, 1), 2.1), math.radians(-90), math.radians(90)),
], False)
sketch22.addGeometry(Part.LineSegment(V(6.3, 4.2, 0), V(6.3, 8.5, 0)), True)
sketch22.addConstraint([
    Sketcher.Constraint("Coincident", 0, 1, 1, 1),
    Sketcher.Constraint("Coincident", 1, 2, 0, 2),
    Sketcher.Constraint("Vertical", 0),
    Sketcher.Constraint("Vertical", 2),
    Sketcher.Constraint("Coincident", 2, 1, 0, 1),
    Sketcher.Constraint("Vertical", 1, 3, 0, 1),
    Sketcher.Constraint("Equal", 0, 2),
    Sketcher.Constraint("DistanceX", -1, 1, 1, 3, Q("0.25 in")),
    Sketcher.Constraint("DistanceY", -1, 1, 1, 3, Q("0.25 in")),
    Sketcher.Constraint("Radius", 1, Q("2.116667 mm")),
])
groove21 = body.newObject("PartDesign::Groove", "Groove020")
groove21.Profile = sketch22
groove21.ReferenceAxis = (sketch22, ["Axis0"])
groove21.Angle = 360
doc.recompute()

fillet = body.newObject("PartDesign::Fillet", "Fillet")
fillet.Base = (groove21, edges_at(groove21, [
    (0, -12.7, 25.4),
    (12.7, -12.7, 12.7),
    (12.7, 0, 25.4),
    (12.7, 0, 0),
    (0, -12.7, 0),
    (-12.7, 0, 0),
    (-12.7, -12.7, 12.7),
    (-12.7, 12.7, 12.7),
    (0, 12.7, 0),
    (0, 12.7, 25.4),
    (-12.7, 0, 25.4),
    (12.7, 12.7, 12.7),
]))
fillet.Radius = Q("0.05 in")

doc.recompute()
